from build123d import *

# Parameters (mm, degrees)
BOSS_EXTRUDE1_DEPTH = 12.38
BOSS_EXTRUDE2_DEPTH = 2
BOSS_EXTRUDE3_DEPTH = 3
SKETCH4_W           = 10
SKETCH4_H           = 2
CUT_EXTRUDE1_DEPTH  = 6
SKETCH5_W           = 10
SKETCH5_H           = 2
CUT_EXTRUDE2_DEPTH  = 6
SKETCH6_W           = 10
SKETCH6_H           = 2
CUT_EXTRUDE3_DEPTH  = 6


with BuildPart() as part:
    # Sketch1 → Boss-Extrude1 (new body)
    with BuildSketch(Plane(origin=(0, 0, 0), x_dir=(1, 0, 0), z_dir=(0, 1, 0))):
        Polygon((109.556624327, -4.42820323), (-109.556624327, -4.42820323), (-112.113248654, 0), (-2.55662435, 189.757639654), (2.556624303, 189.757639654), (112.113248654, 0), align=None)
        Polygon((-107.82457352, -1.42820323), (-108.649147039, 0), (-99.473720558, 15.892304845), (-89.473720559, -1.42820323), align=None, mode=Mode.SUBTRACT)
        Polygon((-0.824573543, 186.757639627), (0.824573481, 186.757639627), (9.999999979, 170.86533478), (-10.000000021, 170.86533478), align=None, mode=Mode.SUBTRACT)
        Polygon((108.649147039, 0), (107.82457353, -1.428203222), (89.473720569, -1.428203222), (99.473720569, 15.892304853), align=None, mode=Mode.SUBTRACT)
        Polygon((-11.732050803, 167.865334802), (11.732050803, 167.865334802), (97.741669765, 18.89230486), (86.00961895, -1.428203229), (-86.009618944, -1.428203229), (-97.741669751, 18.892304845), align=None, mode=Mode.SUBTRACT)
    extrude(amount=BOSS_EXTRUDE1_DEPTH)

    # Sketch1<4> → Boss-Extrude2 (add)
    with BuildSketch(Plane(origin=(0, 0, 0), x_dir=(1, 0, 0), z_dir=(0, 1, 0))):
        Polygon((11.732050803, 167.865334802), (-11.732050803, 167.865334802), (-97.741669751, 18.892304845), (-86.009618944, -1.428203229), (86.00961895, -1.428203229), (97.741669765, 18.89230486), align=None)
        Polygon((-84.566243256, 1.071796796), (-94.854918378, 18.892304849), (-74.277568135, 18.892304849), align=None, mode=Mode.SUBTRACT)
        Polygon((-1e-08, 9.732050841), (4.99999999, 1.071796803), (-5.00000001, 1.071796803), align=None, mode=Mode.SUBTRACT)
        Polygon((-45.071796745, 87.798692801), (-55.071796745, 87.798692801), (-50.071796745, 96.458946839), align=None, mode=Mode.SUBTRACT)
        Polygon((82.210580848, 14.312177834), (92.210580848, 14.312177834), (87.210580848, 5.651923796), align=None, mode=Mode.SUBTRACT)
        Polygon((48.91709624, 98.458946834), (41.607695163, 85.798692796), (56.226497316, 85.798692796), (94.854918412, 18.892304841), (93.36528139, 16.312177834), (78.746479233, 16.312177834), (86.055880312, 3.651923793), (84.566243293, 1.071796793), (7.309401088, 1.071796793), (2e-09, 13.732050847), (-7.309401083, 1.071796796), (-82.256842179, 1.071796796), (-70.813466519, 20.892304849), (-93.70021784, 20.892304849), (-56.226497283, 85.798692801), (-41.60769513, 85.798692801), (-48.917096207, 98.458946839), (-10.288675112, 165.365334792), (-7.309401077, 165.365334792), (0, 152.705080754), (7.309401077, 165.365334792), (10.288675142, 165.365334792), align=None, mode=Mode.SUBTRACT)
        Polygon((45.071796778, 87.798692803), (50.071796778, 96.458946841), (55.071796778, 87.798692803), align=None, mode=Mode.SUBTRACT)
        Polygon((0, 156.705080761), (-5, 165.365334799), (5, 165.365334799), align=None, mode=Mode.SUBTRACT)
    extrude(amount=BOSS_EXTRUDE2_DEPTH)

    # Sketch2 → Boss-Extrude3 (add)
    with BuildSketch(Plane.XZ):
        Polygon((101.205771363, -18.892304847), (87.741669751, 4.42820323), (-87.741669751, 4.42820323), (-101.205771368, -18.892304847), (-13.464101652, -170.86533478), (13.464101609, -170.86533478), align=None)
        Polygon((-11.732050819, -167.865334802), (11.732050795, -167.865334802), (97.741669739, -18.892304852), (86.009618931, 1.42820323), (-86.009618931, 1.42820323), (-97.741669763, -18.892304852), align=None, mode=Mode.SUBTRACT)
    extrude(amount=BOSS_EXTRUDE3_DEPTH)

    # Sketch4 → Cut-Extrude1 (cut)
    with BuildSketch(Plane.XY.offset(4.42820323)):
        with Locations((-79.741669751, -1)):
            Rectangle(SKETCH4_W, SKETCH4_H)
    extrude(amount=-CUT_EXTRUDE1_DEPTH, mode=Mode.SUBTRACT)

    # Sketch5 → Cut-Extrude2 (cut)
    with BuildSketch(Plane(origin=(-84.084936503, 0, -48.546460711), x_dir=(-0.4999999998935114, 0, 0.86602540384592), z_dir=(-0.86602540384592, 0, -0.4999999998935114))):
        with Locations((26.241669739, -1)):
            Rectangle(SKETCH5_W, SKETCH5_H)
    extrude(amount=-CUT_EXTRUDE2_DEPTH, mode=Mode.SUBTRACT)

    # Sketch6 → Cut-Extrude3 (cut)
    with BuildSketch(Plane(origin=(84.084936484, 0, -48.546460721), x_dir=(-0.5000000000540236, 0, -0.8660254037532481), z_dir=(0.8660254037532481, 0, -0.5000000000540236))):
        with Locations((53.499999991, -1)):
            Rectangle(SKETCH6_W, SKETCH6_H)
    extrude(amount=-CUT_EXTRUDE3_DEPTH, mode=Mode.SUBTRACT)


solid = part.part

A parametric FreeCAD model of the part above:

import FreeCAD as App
import Part
import Sketcher

V = App.Vector
Q = App.Units.Quantity


def add_polygon(sketch, points):
    """Adds a closed chain of lines whose ends are joined by coincident constraints."""
    first, n = sketch.GeometryCount, len(points)
    for a, b in zip(points, points[1:] + points[:1]):
        sketch.addGeometry(Part.LineSegment(App.Vector(*a, 0), App.Vector(*b, 0)), False)
    for i in range(n):
        sketch.addConstraint(Sketcher.Constraint("Coincident", first + i, 2, first + (i + 1) % n, 1))

doc = App.newDocument("Part")
params = doc.addObject("Spreadsheet::Sheet", "Params")
for row, (alias, value) in enumerate([
    ("sketch1_width", "20 mm"),
    ("sketch1_length", "20 mm"),
    ("pad1_length", "12.38 mm"),
    ("sketch2_width", "10 mm"),
    ("pad2_length", "2 mm"),
    ("pad3_length", "3 mm"),
    ("sketch4_width", "10 mm"),
    ("sketch4_height", "2 mm"),
    ("pocket1_length", "6 mm"),
    ("sketch5_width", "10 mm"),
    ("sketch5_height", "2 mm"),
    ("pocket2_length", "6 mm"),
    ("sketch6_width", "10 mm"),
    ("sketch6_height", "2 mm"),
    ("pocket3_length", "6 mm"),
], start=1):
    params.set(f"A{row}", alias)
    params.set(f"B{row}", "=" + value)
    params.setAlias(f"B{row}", alias)

body = doc.addObject("PartDesign::Body", "Body")

sketch1 = body.newObject("Sketcher::SketchObject", "Sketch")
sketch1.AttachmentSupport = (doc.getObject("XZ_Plane"), [""])
sketch1.MapMode = "FlatFace"
add_polygon(sketch1, [(-109.6, 4.4), (109.6, 4.4), (112.1, 0), (2.6, -189.8), (-2.6, -189.8), (-112.1, 0)])
add_polygon(sketch1, [(108.6, 0), (107.8, 1.4), (89.5, 1.4), (99.5, -15.9)])
add_polygon(sketch1, [(-11.7, -167.9), (11.7, -167.9), (97.7, -18.9), (86, 1.4), (-86, 1.4), (-97.7, -18.9)])
add_polygon(sketch1, [(-107.8, 1.4), (-108.6, 0), (-99.5, -15.9), (-89.5, 1.4)])
add_polygon(sketch1, [(-0.8, -186.8), (0.8, -186.8), (10, -170.9), (-10, -170.9)])
sketch1.addConstraint([
    Sketcher.Constraint("Horizontal", 0),
    Sketcher.Constraint("Horizontal", 3),
    Sketcher.Constraint("Horizontal", 7),
    Sketcher.Constraint("Horizontal", 10),
    Sketcher.Constraint("Horizontal", 13),
    Sketcher.Constraint("Horizontal", 19),
    Sketcher.Constraint("Horizontal", 20),
    Sketcher.Constraint("Horizontal", 22),
    Sketcher.Constraint("Symmetric", 1, 2, 4, 2, -1, 1),
    Sketcher.Constraint("Symmetric", 9, 2, 16, 2, -1, 1),
    Sketcher.Constraint("Symmetric", 11, 2, 14, 2, -2),
    Sketcher.Constraint("Symmetric", 8, 2, 17, 2, -2),
    Sketcher.Constraint("Symmetric", 7, 2, 18, 2, -2),
    Sketcher.Constraint("PointOnObject", 1, 2, -1),
    Sketcher.Constraint("PointOnObject", 9, 2, -1),
    Sketcher.Constraint("Parallel", 1, 4),
    Sketcher.Constraint("Parallel", 2, 5),
    Sketcher.Constraint("Parallel", 4, 6),
    Sketcher.Constraint("Parallel", 6, 8),
    Sketcher.Constraint("Parallel", 5, 9),
    Sketcher.Constraint("Parallel", 9, 11),
    Sketcher.Constraint("Parallel", 8, 12),
    Sketcher.Constraint("Parallel", 11, 14),
    Sketcher.Constraint("Parallel", 12, 15),
    Sketcher.Constraint("Parallel", 14, 16),
    Sketcher.Constraint("Parallel", 15, 17),
    Sketcher.Constraint("Parallel", 18, 21),
    Sketcher.Constraint("Parallel", 17, 23),
    Sketcher.Constraint("Horizontal", 7, 2, 12, 2),
    Sketcher.Constraint("Equal", 17, 21),
    Sketcher.Constraint("DistanceX", 22, 2, 22, 1, Q("20 mm")),
    Sketcher.Constraint("Angle", 1, Q("-60 deg")),
    Sketcher.Constraint("Distance", 8, Q("20 mm")),
    Sketcher.Constraint("DistanceX", -1, 1, 21, 2, Q("10 mm")),
    Sketcher.Constraint("DistanceX", 2, 2, 0, 2, Q("107 mm")),
    Sketcher.Constraint("DistanceY", 6, 2, 0, 2, Q("3 mm")),
    Sketcher.Constraint("DistanceY", 11, 2, 8, 2, Q("3 mm")),
    Sketcher.Constraint("DistanceY", 2, 2, 20, 2, Q("3 mm")),
    Sketcher.Constraint("DistanceY", 21, 2, 10, 2, Q("3 mm")),
    Sketcher.Constraint("DistanceX", 10, 1, 10, 2, Q("23.464102 mm")),
    Sketcher.Constraint("DistanceX", 0, 1, 0, 2, Q("219.113249 mm")),
    Sketcher.Constraint("DistanceX", 9, 2, 1, 2, Q("3.464102 mm")),
    Sketcher.Constraint("DistanceX", 12, 2, 7, 2, Q("3.464102 mm")),
])
sketch1.setExpression("Constraints[54]", "Params.sketch1_width")
sketch1.setExpression("Constraints[56]", "Params.sketch1_length")
pad1 = body.newObject("PartDesign::Pad", "Pad")
pad1.Profile = sketch1
pad1.setExpression("Length", "Params.pad1_length")
pad1.Reversed = True

sketch2 = body.newObject("Sketcher::SketchObject", "Sketch001")
sketch2.AttachmentSupport = (doc.getObject("XZ_Plane"), [""])
sketch2.MapMode = "FlatFace"
add_polygon(sketch2, [(11.7, -167.9), (-11.7, -167.9), (-97.7, -18.9), (-86, 1.4), (86, 1.4), (97.7, -18.9)])
add_polygon(sketch2, [(-74.3, -18.9), (-84.6, -1.1), (-94.9, -18.9)])
add_polygon(sketch2, [(-5, -1.1), (0, -9.7), (5, -1.1)])
add_polygon(sketch2, [(87.2, -5.7), (82.2, -14.3), (92.2, -14.3)])
add_polygon(sketch2, [(10.3, -165.4), (48.9, -98.5), (41.6, -85.8), (56.2, -85.8), (94.9, -18.9), (93.4, -16.3), (78.7, -16.3), (86.1, -3.7), (84.6, -1.1), (7.3, -1.1), (0, -13.7), (-7.3, -1.1), (-82.3, -1.1), (-70.8, -20.9), (-93.7, -20.9), (-56.2, -85.8), (-41.6, -85.8), (-48.9, -98.5), (-10.3, -165.4), (-7.3, -165.4), (0, -152.7), (7.3, -165.4)])
add_polygon(sketch2, [(-50.1, -96.5), (-45.1, -87.8), (-55.1, -87.8)])
add_polygon(sketch2, [(5, -165.4), (0, -156.7), (-5, -165.4)])
add_polygon(sketch2, [(55.1, -87.8), (45.1, -87.8), (50.1, -96.5)])
sketch2.addConstraint([
    Sketcher.Constraint("Horizontal", 0),
    Sketcher.Constraint("Horizontal", 3),
    Sketcher.Constraint("Horizontal", 8),
    Sketcher.Constraint("Horizontal", 11),
    Sketcher.Constraint("Horizontal", 13),
    Sketcher.Constraint("Horizontal", 17),
    Sketcher.Constraint("Horizontal", 20),
    Sketcher.Constraint("Horizontal", 23),
    Sketcher.Constraint("Horizontal", 26),
    Sketcher.Constraint("Horizontal", 28),
    Sketcher.Constraint("Horizontal", 30),
    Sketcher.Constraint("Horizontal", 33),
    Sketcher.Constraint("Horizontal", 36),
    Sketcher.Constraint("Horizontal", 38),
    Sketcher.Constraint("Horizontal", 42),
    Sketcher.Constraint("Horizontal", 43),
    Sketcher.Constraint("Symmetric", 1, 2, 4, 2, -2),
    Sketcher.Constraint("Symmetric", 7, 2, 18, 2, -2),
    Sketcher.Constraint("Symmetric", 6, 2, 22, 2, -2),
    Sketcher.Constraint("Symmetric", 23, 2, 25, 2, -2),
    Sketcher.Constraint("Symmetric", 17, 2, 29, 2, -2),
    Sketcher.Constraint("Symmetric", 15, 2, 31, 2, -2),
    Sketcher.Constraint("Symmetric", 33, 2, 35, 2, -2),
    Sketcher.Constraint("Symmetric", 37, 2, 43, 2, -2),
    Sketcher.Constraint("Symmetric", 39, 2, 44, 2, -2),
    Sketcher.Constraint("PointOnObject", 9, 2, -2),
    Sketcher.Constraint("PointOnObject", 24, 2, -2),
    Sketcher.Constraint("PointOnObject", 34, 2, -2),
    Sketcher.Constraint("PointOnObject", 40, 2, -2),
    Sketcher.Constraint("Parallel", 1, 4),
    Sketcher.Constraint("Parallel", 2, 5),
    Sketcher.Constraint("Parallel", 4, 6),
    Sketcher.Constraint("Parallel", 5, 7),
    Sketcher.Constraint("Parallel", 6, 9),
    Sketcher.Constraint("Parallel", 7, 10),
    Sketcher.Constraint("Parallel", 10, 12),
    Sketcher.Constraint("Parallel", 9, 14),
    Sketcher.Constraint("Parallel", 12, 15),
    Sketcher.Constraint("Parallel", 14, 16),
    Sketcher.Constraint("Parallel", 15, 18),
    Sketcher.Constraint("Parallel", 16, 19),
    Sketcher.Constraint("Parallel", 18, 21),
    Sketcher.Constraint("Parallel", 19, 22),
    Sketcher.Constraint("Parallel", 21, 24),
    Sketcher.Constraint("Parallel", 22, 25),
    Sketcher.Constraint("Parallel", 25, 27),
    Sketcher.Constraint("Parallel", 27, 29),
    Sketcher.Constraint("Parallel", 24, 31),
    Sketcher.Constraint("Parallel", 29, 32),
    Sketcher.Constraint("Parallel", 31, 34),
    Sketcher.Constraint("Parallel", 34, 37),
    Sketcher.Constraint("Parallel", 35, 39),
    Sketcher.Constraint("Parallel", 39, 40),
    Sketcher.Constraint("Parallel", 37, 41),
    Sketcher.Constraint("Parallel", 41, 45),
    Sketcher.Constraint("Horizontal", 4, 2, 7, 2),
    Sketcher.Constraint("Horizontal", 6, 2, 10, 2),
    Sketcher.Constraint("Horizontal", 36, 2, 41, 2),
    Sketcher.Constraint("Vertical", 25, 2, 33, 2),
    Sketcher.Constraint("Vertical", 11, 2, 41, 2),
    Sketcher.Constraint("Equal", 11, 13),
    Sketcher.Constraint("Equal", 17, 20),
    Sketcher.Constraint("Equal", 13, 38),
    Sketcher.Constraint("Equal", 15, 18),
    Sketcher.Constraint("Equal", 16, 21),
    Sketcher.Constraint("Equal", 19, 22),
    Sketcher.Constraint("Equal", 21, 24),
    Sketcher.Constraint("DistanceX", 11, 2, 11, 1, Q("10 mm")),
    Sketcher.Constraint("Angle", 1, Q("120 deg")),
    Sketcher.Constraint("DistanceY", 19, 2, 13, 2, Q("2 mm")),
    Sketcher.Constraint("DistanceY", 14, 2, 21, 2, Q("2 mm")),
    Sketcher.Constraint("DistanceY", 27, 2, 8, 2, Q("2 mm")),
    Sketcher.Constraint("DistanceY", 37, 2, 30, 2, Q("2 mm")),
    Sketcher.Constraint("DistanceY", 6, 2, 2, 2, Q("2.5 mm")),
    Sketcher.Constraint("DistanceY", 0, 2, 32, 2, Q("2.5 mm")),
    Sketcher.Constraint("DistanceX", 0, 2, 0, 1, Q("23.464102 mm")),
    Sketcher.Constraint("Distance", 2, Q("23.464102 mm")),
    Sketcher.Constraint("DistanceX", 26, 2, 26, 1, Q("74.947441 mm")),
    Sketcher.Constraint("DistanceX", 28, 2, 28, 1, Q("22.886751 mm")),
    Sketcher.Constraint("DistanceX", 7, 2, 2, 2, Q("8.845299 mm")),
    Sketcher.Constraint("DistanceX", 13, 2, 19, 2, Q("1.154701 mm")),
    Sketcher.Constraint("DistanceX", 37, 2, 30, 2, Q("3.464102 mm")),
    Sketcher.Constraint("DistanceY", 9, 2, -1, 1, Q("9.732051 mm")),
])
sketch2.setExpression("Constraints[113]", "Params.sketch2_width")
pad2 = body.newObject("PartDesign::Pad", "Pad001")
pad2.Profile = sketch2
pad2.setExpression("Length", "Params.pad2_length")
pad2.Reversed = True

sketch3 = body.newObject("Sketcher::SketchObject", "Sketch002")
sketch3.AttachmentSupport = (doc.getObject("XZ_Plane"), [""])
sketch3.MapMode = "FlatFace"
add_polygon(sketch3, [(101, -19), (88, 4), (-88, 4), (-101, -19), (-13, -171), (13, -171)])
add_polygon(sketch3, [(12, -168), (-12, -168), (-98, -19), (-86, 1), (86, 1), (98, -19)])
sketch3.addConstraint([
    Sketcher.Constraint("Horizontal", 1),
    Sketcher.Constraint("Horizontal", 4),
    Sketcher.Constraint("Horizontal", 6),
    Sketcher.Constraint("Horizontal", 9),
    Sketcher.Constraint("Symmetric", 2, 2, 5, 2, -2),
    Sketcher.Constraint("Symmetric", 7, 2, 10, 2, -2),
    Sketcher.Constraint("Parallel", 0, 3),
    Sketcher.Constraint("Parallel", 2, 5),
    Sketcher.Constraint("Parallel", 3, 7),
    Sketcher.Constraint("Parallel", 5, 8),
    Sketcher.Constraint("Parallel", 7, 10),
    Sketcher.Constraint("Parallel", 8, 11),
    Sketcher.Constraint("Horizontal", 5, 2, 7, 2),
    Sketcher.Constraint("Equal", 0, 2),
    Sketcher.Constraint("Angle", 0, Q("120 deg")),
    Sketcher.Constraint("DistanceY", 3, 2, 6, 2, Q("3 mm")),
    Sketcher.Constraint("DistanceX", 7, 2, 1, 2, Q("10 mm")),
    Sketcher.Constraint("DistanceY", 8, 2, 1, 2, Q("3 mm")),
    Sketcher.Constraint("DistanceX", 6, 2, 6, 1, Q("23.464102 mm")),
    Sketcher.Constraint("Distance", 8, Q("23.464102 mm")),
    Sketcher.Constraint("DistanceX", 1, 2, 1, 1, Q("175.48334 mm")),
    Sketcher.Constraint("DistanceY", -1, 1, 0, 2, Q("4.428203 mm")),
])
pad3 = body.newObject("PartDesign::Pad", "Pad002")
pad3.Profile = sketch3
pad3.setExpression("Length", "Params.pad3_length")

sketch4 = body.newObject("Sketcher::SketchObject", "Sketch003")
sketch4.AttachmentSupport = (doc.getObject("XY_Plane"), [""])
sketch4.MapMode = "FlatFace"
sketch4.AttachmentOffset = App.Placement(V(0, 0, 4.428203), App.Rotation())
add_polygon(sketch4, [(-84.7, 0), (-84.7, -2), (-74.7, -2), (-74.7, 0)])
sketch4.addConstraint([
    Sketcher.Constraint("Vertical", 0),
    Sketcher.Constraint("Horizontal", 1),
    Sketcher.Constraint("Vertical", 2),
    Sketcher.Constraint("Horizontal", 3),
    Sketcher.Constraint("PointOnObject", 2, 2, -1),
    Sketcher.Constraint("DistanceX", 1, 1, 1, 2, Q("10 mm")),
    Sketcher.Constraint("DistanceY", 0, 2, 0, 1, Q("2 mm")),
    Sketcher.Constraint("DistanceX", 0, 2, -1, 1, Q("84.74167 mm")),
])
sketch4.setExpression("Constraints[9]", "Params.sketch4_width")
sketch4.setExpression("Constraints[10]", "Params.sketch4_height")
pocket1 = body.newObject("PartDesign::Pocket", "Pocket")
pocket1.Profile = sketch4
pocket1.setExpression("Length", "Params.pocket1_length")

sketch5 = body.newObject("Sketcher::SketchObject", "Sketch004")
sketch5.Placement = App.Placement(V(-84.084937, 0, -48.546461), App.Rotation(V(-0.5, 0, 0.866025404), V(0, 1, 0), V(-0.866025404, 0, -0.5), "ZXY"))
add_polygon(sketch5, [(21.2, 0), (21.2, -2), (31.2, -2), (31.2, 0)])
sketch5.addConstraint([
    Sketcher.Constraint("Vertical", 0),
    Sketcher.Constraint("Horizontal", 1),
    Sketcher.Constraint("Vertical", 2),
    Sketcher.Constraint("Horizontal", 3),
    Sketcher.Constraint("PointOnObject", 2, 2, -1),
    Sketcher.Constraint("DistanceX", 1, 1, 1, 2, Q("10 mm")),
    Sketcher.Constraint("DistanceY", 0, 2, 0, 1, Q("2 mm")),
    Sketcher.Constraint("DistanceX", -1, 1, 0, 2, Q("21.24167 mm")),
])
sketch5.setExpression("Constraints[9]", "Params.sketch5_width")
sketch5.setExpression("Constraints[10]", "Params.sketch5_height")
pocket2 = body.newObject("PartDesign::Pocket", "Pocket001")
pocket2.Profile = sketch5
pocket2.setExpression("Length", "Params.pocket2_length")

sketch6 = body.newObject("Sketcher::SketchObject", "Sketch005")
sketch6.Placement = App.Placement(V(84.084936, 0, -48.546461), App.Rotation(V(-0.5, 0, -0.866025404), V(0, 1, 0), V(0.866025404, 0, -0.5), "ZXY"))
add_polygon(sketch6, [(48.5, 0), (48.5, -2), (58.5, -2), (58.5, 0)])
sketch6.addConstraint([
    Sketcher.Constraint("Vertical", 0),
    Sketcher.Constraint("Horizontal", 1),
    Sketcher.Constraint("Vertical", 2),
    Sketcher.Constraint("Horizontal", 3),
    Sketcher.Constraint("PointOnObject", 2, 2, -1),
    Sketcher.Constraint("DistanceX", 1, 1, 1, 2, Q("10 mm")),
    Sketcher.Constraint("DistanceY", 0, 2, 0, 1, Q("2 mm")),
    Sketcher.Constraint("DistanceX", -1, 1, 0, 2, Q("48.5 mm")),
])
sketch6.setExpression("Constraints[9]", "Params.sketch6_width")
sketch6.setExpression("Constraints[10]", "Params.sketch6_height")
pocket3 = body.newObject("PartDesign::Pocket", "Pocket002")
pocket3.Profile = sketch6
pocket3.setExpression("Length", "Params.pocket3_length")

doc.recompute()
